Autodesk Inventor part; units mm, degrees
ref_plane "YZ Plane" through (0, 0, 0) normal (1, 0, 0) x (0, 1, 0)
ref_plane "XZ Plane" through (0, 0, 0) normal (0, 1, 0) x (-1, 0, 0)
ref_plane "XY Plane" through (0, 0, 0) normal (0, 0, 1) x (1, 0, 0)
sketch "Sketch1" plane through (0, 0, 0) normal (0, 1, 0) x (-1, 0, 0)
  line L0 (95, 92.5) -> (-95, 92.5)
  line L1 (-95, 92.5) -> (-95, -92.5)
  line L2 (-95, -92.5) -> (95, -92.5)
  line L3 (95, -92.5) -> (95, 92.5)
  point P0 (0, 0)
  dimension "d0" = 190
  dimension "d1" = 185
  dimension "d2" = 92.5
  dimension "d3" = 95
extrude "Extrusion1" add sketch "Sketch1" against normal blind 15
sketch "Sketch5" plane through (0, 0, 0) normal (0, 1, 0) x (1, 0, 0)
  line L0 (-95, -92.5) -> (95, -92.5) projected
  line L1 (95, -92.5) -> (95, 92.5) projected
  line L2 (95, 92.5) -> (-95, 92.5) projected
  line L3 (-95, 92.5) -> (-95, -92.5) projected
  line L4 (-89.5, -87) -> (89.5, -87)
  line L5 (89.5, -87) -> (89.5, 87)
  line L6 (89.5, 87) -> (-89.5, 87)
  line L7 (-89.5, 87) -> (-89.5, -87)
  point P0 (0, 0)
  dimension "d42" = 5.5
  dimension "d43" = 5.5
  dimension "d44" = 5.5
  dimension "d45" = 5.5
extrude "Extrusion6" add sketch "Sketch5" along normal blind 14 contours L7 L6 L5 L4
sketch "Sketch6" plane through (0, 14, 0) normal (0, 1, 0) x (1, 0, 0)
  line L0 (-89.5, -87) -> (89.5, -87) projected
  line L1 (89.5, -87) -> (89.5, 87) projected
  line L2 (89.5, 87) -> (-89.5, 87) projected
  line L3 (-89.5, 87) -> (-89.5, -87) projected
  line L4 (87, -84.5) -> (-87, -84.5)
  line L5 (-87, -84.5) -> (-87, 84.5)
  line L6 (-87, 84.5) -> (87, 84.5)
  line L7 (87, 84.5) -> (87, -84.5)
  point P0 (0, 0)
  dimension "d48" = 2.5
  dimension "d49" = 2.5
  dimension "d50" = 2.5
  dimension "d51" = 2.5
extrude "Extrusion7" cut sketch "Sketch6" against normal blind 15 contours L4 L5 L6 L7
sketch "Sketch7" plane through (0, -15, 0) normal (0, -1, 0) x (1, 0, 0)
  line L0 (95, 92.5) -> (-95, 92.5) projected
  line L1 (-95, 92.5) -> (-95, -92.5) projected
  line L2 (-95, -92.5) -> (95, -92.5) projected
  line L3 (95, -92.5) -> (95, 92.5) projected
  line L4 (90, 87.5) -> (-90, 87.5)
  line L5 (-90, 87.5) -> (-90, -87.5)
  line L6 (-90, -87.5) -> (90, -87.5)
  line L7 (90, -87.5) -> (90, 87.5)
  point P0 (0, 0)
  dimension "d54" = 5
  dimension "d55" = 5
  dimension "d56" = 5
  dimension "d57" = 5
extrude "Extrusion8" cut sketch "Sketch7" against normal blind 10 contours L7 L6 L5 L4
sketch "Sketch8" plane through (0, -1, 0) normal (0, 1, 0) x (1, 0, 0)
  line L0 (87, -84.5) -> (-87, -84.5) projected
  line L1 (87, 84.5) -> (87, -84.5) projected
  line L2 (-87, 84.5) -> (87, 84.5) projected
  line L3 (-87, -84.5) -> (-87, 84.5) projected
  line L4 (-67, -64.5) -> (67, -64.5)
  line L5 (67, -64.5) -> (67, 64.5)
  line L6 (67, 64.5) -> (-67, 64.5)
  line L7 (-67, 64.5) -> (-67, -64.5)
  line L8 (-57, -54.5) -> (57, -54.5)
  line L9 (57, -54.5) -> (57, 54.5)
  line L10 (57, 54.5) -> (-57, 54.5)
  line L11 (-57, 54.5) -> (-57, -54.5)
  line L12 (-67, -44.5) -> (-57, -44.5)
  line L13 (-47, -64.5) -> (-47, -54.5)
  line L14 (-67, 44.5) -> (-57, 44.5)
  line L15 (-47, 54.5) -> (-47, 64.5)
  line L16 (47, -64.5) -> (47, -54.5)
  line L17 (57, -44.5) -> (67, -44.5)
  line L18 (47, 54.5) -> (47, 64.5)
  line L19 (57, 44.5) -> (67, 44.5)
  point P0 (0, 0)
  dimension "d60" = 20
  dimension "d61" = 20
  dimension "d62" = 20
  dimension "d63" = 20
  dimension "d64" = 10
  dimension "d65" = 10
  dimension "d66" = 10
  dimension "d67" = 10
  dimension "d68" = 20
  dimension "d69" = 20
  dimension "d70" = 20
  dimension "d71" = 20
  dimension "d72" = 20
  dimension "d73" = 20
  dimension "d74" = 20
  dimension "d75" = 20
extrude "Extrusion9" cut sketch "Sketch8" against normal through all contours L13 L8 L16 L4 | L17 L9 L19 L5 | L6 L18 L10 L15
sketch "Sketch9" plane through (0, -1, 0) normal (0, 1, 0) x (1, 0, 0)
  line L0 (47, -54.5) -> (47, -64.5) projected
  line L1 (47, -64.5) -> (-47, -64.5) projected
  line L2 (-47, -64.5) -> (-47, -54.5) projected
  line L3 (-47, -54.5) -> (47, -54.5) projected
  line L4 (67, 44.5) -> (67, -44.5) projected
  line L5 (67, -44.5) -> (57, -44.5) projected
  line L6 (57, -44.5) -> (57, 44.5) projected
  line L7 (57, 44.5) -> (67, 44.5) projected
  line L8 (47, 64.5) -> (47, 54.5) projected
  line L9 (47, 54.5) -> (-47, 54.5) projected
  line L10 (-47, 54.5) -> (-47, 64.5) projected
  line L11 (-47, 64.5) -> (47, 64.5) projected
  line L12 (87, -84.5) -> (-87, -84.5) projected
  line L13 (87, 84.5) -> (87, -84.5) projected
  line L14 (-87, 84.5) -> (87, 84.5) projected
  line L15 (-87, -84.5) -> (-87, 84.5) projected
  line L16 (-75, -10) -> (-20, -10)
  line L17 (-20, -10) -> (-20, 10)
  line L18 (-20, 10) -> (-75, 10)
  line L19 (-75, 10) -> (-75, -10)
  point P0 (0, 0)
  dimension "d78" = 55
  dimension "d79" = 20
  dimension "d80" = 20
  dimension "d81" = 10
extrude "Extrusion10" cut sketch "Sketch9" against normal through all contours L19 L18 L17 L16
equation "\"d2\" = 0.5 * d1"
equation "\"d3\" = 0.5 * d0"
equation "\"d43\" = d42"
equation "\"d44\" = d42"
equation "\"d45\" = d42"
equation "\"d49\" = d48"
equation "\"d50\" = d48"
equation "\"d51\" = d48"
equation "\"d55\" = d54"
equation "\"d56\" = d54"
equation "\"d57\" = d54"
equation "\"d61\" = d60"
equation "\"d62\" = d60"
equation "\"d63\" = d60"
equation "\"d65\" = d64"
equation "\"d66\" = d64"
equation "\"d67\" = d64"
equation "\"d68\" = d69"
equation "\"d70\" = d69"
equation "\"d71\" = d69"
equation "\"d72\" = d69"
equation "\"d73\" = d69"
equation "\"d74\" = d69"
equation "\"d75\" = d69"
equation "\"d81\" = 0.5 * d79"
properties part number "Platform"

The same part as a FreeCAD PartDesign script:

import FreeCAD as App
import Part
import Sketcher
Q = App.Units.Quantity

doc = App.newDocument("Part")
body = doc.addObject("PartDesign::Body", "Body")

# Sketch on XZ plane
sketch1 = doc.addObject("Sketcher::SketchObject", "Sketch")
body.addObject(sketch1)
sketch1.AttachmentSupport = (doc.XZ_Plane, [""])
sketch1.MapMode = "FlatFace"
sketch1.addGeometry([
    Part.LineSegment(App.Vector(-95, -92, 0), App.Vector(-95, 92, 0)),
    Part.LineSegment(App.Vector(-95, 92, 0), App.Vector(95, 92, 0)),
    Part.LineSegment(App.Vector(95, 92, 0), App.Vector(95, -92, 0)),
    Part.LineSegment(App.Vector(95, -92, 0), App.Vector(-95, -92, 0)),
], False)
sketch1.addConstraint([
    Sketcher.Constraint("Coincident", 0, 2, 1, 1),
    Sketcher.Constraint("Coincident", 1, 2, 2, 1),
    Sketcher.Constraint("Coincident", 2, 2, 3, 1),
    Sketcher.Constraint("Coincident", 3, 2, 0, 1),
    Sketcher.Constraint("Vertical", 0),
    Sketcher.Constraint("Horizontal", 1),
    Sketcher.Constraint("Vertical", 2),
    Sketcher.Constraint("Horizontal", 3),
    Sketcher.Constraint("Symmetric", 0, 2, 2, 2, -1, 1),
    Sketcher.Constraint("DistanceX", 1, 1, 1, 2, Q("190 mm")),
    Sketcher.Constraint("DistanceY", 0, 1, 0, 2, Q("185 mm")),
])
pad1 = doc.addObject("PartDesign::Pad", "Pad")
body.addObject(pad1)
pad1.Profile = sketch1
pad1.Length = 15

# Sketch on XZ plane
sketch2 = doc.addObject("Sketcher::SketchObject", "Sketch001")
body.addObject(sketch2)
sketch2.AttachmentSupport = (doc.XZ_Plane, [""])
sketch2.MapMode = "FlatFace"
sketch2.addGeometry([
    Part.LineSegment(App.Vector(-90, -87, 0), App.Vector(-90, 87, 0)),
    Part.LineSegment(App.Vector(-90, 87, 0), App.Vector(90, 87, 0)),
    Part.LineSegment(App.Vector(90, 87, 0), App.Vector(90, -87, 0)),
    Part.LineSegment(App.Vector(90, -87, 0), App.Vector(-90, -87, 0)),
], False)
sketch2.addConstraint([
    Sketcher.Constraint("Coincident", 0, 2, 1, 1),
    Sketcher.Constraint("Coincident", 1, 2, 2, 1),
    Sketcher.Constraint("Coincident", 2, 2, 3, 1),
    Sketcher.Constraint("Coincident", 3, 2, 0, 1),
    Sketcher.Constraint("Vertical", 0),
    Sketcher.Constraint("Horizontal", 1),
    Sketcher.Constraint("Vertical", 2),
    Sketcher.Constraint("Horizontal", 3),
    Sketcher.Constraint("Symmetric", 0, 2, 2, 2, -1, 1),
    Sketcher.Constraint("DistanceX", 1, 1, 1, 2, Q("179 mm")),
    Sketcher.Constraint("DistanceY", 0, 1, 0, 2, Q("174 mm")),
])
pad2 = doc.addObject("PartDesign::Pad", "Pad001")
body.addObject(pad2)
pad2.Profile = sketch2
pad2.Length = 14
pad2.Reversed = True

# Sketch on XZ plane
sketch3 = doc.addObject("Sketcher::SketchObject", "Sketch002")
body.addObject(sketch3)
sketch3.AttachmentSupport = (doc.XZ_Plane, [""])
sketch3.MapMode = "FlatFace"
sketch3.AttachmentOffset = App.Placement(App.Vector(0, 0, -14), App.Rotation())
sketch3.addGeometry([
    Part.LineSegment(App.Vector(-87, 84, 0), App.Vector(87, 84, 0)),
    Part.LineSegment(App.Vector(87, 84, 0), App.Vector(87, -84, 0)),
    Part.LineSegment(App.Vector(87, -84, 0), App.Vector(-87, -84, 0)),
    Part.LineSegment(App.Vector(-87, -84, 0), App.Vector(-87, 84, 0)),
], False)
sketch3.addConstraint([
    Sketcher.Constraint("Coincident", 0, 2, 1, 1),
    Sketcher.Constraint("Coincident", 1, 2, 2, 1),
    Sketcher.Constraint("Coincident", 2, 2, 3, 1),
    Sketcher.Constraint("Coincident", 3, 2, 0, 1),
    Sketcher.Constraint("Horizontal", 0),
    Sketcher.Constraint("Vertical", 1),
    Sketcher.Constraint("Horizontal", 2),
    Sketcher.Constraint("Vertical", 3),
    Sketcher.Constraint("Symmetric", 0, 2, 2, 2, -1, 1),
    Sketcher.Constraint("DistanceX", 0, 1, 0, 2, Q("174 mm")),
    Sketcher.Constraint("DistanceY", 1, 2, 1, 1, Q("169 mm")),
])
pocket1 = doc.addObject("PartDesign::Pocket", "Pocket")
body.addObject(pocket1)
pocket1.Profile = sketch3
pocket1.Length = 15
pocket1.Reversed = True

# Sketch on XZ plane
sketch4 = doc.addObject("Sketcher::SketchObject", "Sketch003")
body.addObject(sketch4)
sketch4.AttachmentSupport = (doc.XZ_Plane, [""])
sketch4.MapMode = "FlatFace"
sketch4.AttachmentOffset = App.Placement(App.Vector(0, 0, 15), App.Rotation())
sketch4.addGeometry([
    Part.LineSegment(App.Vector(90, -88, 0), App.Vector(90, 88, 0)),
    Part.LineSegment(App.Vector(90, 88, 0), App.Vector(-90, 88, 0)),
    Part.LineSegment(App.Vector(-90, 88, 0), App.Vector(-90, -88, 0)),
    Part.LineSegment(App.Vector(-90, -88, 0), App.Vector(90, -88, 0)),
], False)
sketch4.addConstraint([
    Sketcher.Constraint("Coincident", 0, 2, 1, 1),
    Sketcher.Constraint("Coincident", 1, 2, 2, 1),
    Sketcher.Constraint("Coincident", 2, 2, 3, 1),
    Sketcher.Constraint("Coincident", 3, 2, 0, 1),
    Sketcher.Constraint("Vertical", 0),
    Sketcher.Constraint("Horizontal", 1),
    Sketcher.Constraint("Vertical", 2),
    Sketcher.Constraint("Horizontal", 3),
    Sketcher.Constraint("Symmetric", 0, 2, 2, 2, -1, 1),
    Sketcher.Constraint("DistanceX", 1, 2, 1, 1, Q("180 mm")),
    Sketcher.Constraint("DistanceY", 0, 1, 0, 2, Q("175 mm")),
])
pocket2 = doc.addObject("PartDesign::Pocket", "Pocket001")
body.addObject(pocket2)
pocket2.Profile = sketch4
pocket2.Length = 10

# Sketch on XZ plane
sketch5 = doc.addObject("Sketcher::SketchObject", "Sketch004")
body.addObject(sketch5)
sketch5.AttachmentSupport = (doc.XZ_Plane, [""])
sketch5.MapMode = "FlatFace"
sketch5.AttachmentOffset = App.Placement(App.Vector(0, 0, 1), App.Rotation())
sketch5.addGeometry([
    Part.LineSegment(App.Vector(-47, 54, 0), App.Vector(-47, 64, 0)),  # 0
    Part.LineSegment(App.Vector(-47, 64, 0), App.Vector(47, 64, 0)),  # 1
    Part.LineSegment(App.Vector(47, 64, 0), App.Vector(47, 54, 0)),  # 2
    Part.LineSegment(App.Vector(47, 54, 0), App.Vector(-47, 54, 0)),  # 3
    Part.LineSegment(App.Vector(57, 44, 0), App.Vector(67, 44, 0)),  # 4
    Part.LineSegment(App.Vector(67, 44, 0), App.Vector(67, -44, 0)),  # 5
    Part.LineSegment(App.Vector(67, -44, 0), App.Vector(57, -44, 0)),  # 6
    Part.LineSegment(App.Vector(57, -44, 0), App.Vector(57, 44, 0)),  # 7
    Part.LineSegment(App.Vector(47, -64, 0), App.Vector(-47, -64, 0)),  # 8
    Part.LineSegment(App.Vector(-47, -64, 0), App.Vector(-47, -54, 0)),  # 9
    Part.LineSegment(App.Vector(-47, -54, 0), App.Vector(47, -54, 0)),  # 10
    Part.LineSegment(App.Vector(47, -54, 0), App.Vector(47, -64, 0)),  # 11
], False)
sketch5.addConstraint([
    Sketcher.Constraint("Coincident", 0, 2, 1, 1),
    Sketcher.Constraint("Coincident", 1, 2, 2, 1),
    Sketcher.Constraint("Coincident", 2, 2, 3, 1),
    Sketcher.Constraint("Coincident", 3, 2, 0, 1),
    Sketcher.Constraint("Coincident", 4, 2, 5, 1),
    Sketcher.Constraint("Coincident", 5, 2, 6, 1),
    Sketcher.Constraint("Coincident", 6, 2, 7, 1),
    Sketcher.Constraint("Coincident", 7, 2, 4, 1),
    Sketcher.Constraint("Coincident", 8, 2, 9, 1),
    Sketcher.Constraint("Coincident", 9, 2, 10, 1),
    Sketcher.Constraint("Coincident", 10, 2, 11, 1),
    Sketcher.Constraint("Coincident", 11, 2, 8, 1),
    Sketcher.Constraint("Vertical", 0),
    Sketcher.Constraint("Horizontal", 1),
    Sketcher.Constraint("Vertical", 2),
    Sketcher.Constraint("Horizontal", 3),
    Sketcher.Constraint("Horizontal", 4),
    Sketcher.Constraint("Vertical", 5),
    Sketcher.Constraint("Horizontal", 6),
    Sketcher.Constraint("Vertical", 7),
    Sketcher.Constraint("Horizontal", 8),
    Sketcher.Constraint("Vertical", 9),
    Sketcher.Constraint("Horizontal", 10),
    Sketcher.Constraint("Vertical", 11),
    Sketcher.Constraint("Symmetric", 1, 2, 8, 2, -1, 1),
    Sketcher.Constraint("Symmetric", 3, 2, 10, 2, -1, 1),
    Sketcher.Constraint("Vertical", 3, 2, 8, 2),
    Sketcher.Constraint("Equal", 6, 0),
    Sketcher.Constraint("DistanceX", 4, 1, 4, 2, Q("10 mm")),
    Sketcher.Constraint("DistanceX", 2, 2, 4, 2, Q("20 mm")),
    Sketcher.Constraint("DistanceY", 4, 2, 2, 2, Q("10 mm")),
    Sketcher.Constraint("DistanceY", 8, 2, 6, 2, Q("20 mm")),
    Sketcher.Constraint("DistanceX", 1, 1, 1, 2, Q("94 mm")),
    Sketcher.Constraint("DistanceY", 5, 2, 5, 1, Q("89 mm")),
])
pocket3 = doc.addObject("PartDesign::Pocket", "Pocket002")
body.addObject(pocket3)
pocket3.Profile = sketch5
pocket3.Type = "ThroughAll"
pocket3.Reversed = True

# Sketch on XZ plane
sketch6 = doc.addObject("Sketcher::SketchObject", "Sketch005")
body.addObject(sketch6)
sketch6.AttachmentSupport = (doc.XZ_Plane, [""])
sketch6.MapMode = "FlatFace"
sketch6.AttachmentOffset = App.Placement(App.Vector(0, 0, 1), App.Rotation())
sketch6.addGeometry([
    Part.LineSegment(App.Vector(-75, -10, 0), App.Vector(-75, 10, 0)),
    Part.LineSegment(App.Vector(-75, 10, 0), App.Vector(-20, 10, 0)),
    Part.LineSegment(App.Vector(-20, 10, 0), App.Vector(-20, -10, 0)),
    Part.LineSegment(App.Vector(-20, -10, 0), App.Vector(-75, -10, 0)),
], False)
sketch6.addConstraint([
    Sketcher.Constraint("Coincident", 0, 2, 1, 1),
    Sketcher.Constraint("Coincident", 1, 2, 2, 1),
    Sketcher.Constraint("Coincident", 2, 2, 3, 1),
    Sketcher.Constraint("Coincident", 3, 2, 0, 1),
    Sketcher.Constraint("Vertical", 0),
    Sketcher.Constraint("Horizontal", 1),
    Sketcher.Constraint("Vertical", 2),
    Sketcher.Constraint("Horizontal", 3),
    Sketcher.Constraint("DistanceX", 1, 1, 1, 2, Q("55 mm")),
    Sketcher.Constraint("DistanceY", 0, 1, 0, 2, Q("20 mm")),
    Sketcher.Constraint("DistanceY", -1, 1, 0, 2, Q("10 mm")),
    Sketcher.Constraint("DistanceX", 1, 2, -1, 1, Q("20 mm")),
])
pocket4 = doc.addObject("PartDesign::Pocket", "Pocket003")
body.addObject(pocket4)
pocket4.Profile = sketch6
pocket4.Type = "ThroughAll"
pocket4.Reversed = True

doc.recompute()
